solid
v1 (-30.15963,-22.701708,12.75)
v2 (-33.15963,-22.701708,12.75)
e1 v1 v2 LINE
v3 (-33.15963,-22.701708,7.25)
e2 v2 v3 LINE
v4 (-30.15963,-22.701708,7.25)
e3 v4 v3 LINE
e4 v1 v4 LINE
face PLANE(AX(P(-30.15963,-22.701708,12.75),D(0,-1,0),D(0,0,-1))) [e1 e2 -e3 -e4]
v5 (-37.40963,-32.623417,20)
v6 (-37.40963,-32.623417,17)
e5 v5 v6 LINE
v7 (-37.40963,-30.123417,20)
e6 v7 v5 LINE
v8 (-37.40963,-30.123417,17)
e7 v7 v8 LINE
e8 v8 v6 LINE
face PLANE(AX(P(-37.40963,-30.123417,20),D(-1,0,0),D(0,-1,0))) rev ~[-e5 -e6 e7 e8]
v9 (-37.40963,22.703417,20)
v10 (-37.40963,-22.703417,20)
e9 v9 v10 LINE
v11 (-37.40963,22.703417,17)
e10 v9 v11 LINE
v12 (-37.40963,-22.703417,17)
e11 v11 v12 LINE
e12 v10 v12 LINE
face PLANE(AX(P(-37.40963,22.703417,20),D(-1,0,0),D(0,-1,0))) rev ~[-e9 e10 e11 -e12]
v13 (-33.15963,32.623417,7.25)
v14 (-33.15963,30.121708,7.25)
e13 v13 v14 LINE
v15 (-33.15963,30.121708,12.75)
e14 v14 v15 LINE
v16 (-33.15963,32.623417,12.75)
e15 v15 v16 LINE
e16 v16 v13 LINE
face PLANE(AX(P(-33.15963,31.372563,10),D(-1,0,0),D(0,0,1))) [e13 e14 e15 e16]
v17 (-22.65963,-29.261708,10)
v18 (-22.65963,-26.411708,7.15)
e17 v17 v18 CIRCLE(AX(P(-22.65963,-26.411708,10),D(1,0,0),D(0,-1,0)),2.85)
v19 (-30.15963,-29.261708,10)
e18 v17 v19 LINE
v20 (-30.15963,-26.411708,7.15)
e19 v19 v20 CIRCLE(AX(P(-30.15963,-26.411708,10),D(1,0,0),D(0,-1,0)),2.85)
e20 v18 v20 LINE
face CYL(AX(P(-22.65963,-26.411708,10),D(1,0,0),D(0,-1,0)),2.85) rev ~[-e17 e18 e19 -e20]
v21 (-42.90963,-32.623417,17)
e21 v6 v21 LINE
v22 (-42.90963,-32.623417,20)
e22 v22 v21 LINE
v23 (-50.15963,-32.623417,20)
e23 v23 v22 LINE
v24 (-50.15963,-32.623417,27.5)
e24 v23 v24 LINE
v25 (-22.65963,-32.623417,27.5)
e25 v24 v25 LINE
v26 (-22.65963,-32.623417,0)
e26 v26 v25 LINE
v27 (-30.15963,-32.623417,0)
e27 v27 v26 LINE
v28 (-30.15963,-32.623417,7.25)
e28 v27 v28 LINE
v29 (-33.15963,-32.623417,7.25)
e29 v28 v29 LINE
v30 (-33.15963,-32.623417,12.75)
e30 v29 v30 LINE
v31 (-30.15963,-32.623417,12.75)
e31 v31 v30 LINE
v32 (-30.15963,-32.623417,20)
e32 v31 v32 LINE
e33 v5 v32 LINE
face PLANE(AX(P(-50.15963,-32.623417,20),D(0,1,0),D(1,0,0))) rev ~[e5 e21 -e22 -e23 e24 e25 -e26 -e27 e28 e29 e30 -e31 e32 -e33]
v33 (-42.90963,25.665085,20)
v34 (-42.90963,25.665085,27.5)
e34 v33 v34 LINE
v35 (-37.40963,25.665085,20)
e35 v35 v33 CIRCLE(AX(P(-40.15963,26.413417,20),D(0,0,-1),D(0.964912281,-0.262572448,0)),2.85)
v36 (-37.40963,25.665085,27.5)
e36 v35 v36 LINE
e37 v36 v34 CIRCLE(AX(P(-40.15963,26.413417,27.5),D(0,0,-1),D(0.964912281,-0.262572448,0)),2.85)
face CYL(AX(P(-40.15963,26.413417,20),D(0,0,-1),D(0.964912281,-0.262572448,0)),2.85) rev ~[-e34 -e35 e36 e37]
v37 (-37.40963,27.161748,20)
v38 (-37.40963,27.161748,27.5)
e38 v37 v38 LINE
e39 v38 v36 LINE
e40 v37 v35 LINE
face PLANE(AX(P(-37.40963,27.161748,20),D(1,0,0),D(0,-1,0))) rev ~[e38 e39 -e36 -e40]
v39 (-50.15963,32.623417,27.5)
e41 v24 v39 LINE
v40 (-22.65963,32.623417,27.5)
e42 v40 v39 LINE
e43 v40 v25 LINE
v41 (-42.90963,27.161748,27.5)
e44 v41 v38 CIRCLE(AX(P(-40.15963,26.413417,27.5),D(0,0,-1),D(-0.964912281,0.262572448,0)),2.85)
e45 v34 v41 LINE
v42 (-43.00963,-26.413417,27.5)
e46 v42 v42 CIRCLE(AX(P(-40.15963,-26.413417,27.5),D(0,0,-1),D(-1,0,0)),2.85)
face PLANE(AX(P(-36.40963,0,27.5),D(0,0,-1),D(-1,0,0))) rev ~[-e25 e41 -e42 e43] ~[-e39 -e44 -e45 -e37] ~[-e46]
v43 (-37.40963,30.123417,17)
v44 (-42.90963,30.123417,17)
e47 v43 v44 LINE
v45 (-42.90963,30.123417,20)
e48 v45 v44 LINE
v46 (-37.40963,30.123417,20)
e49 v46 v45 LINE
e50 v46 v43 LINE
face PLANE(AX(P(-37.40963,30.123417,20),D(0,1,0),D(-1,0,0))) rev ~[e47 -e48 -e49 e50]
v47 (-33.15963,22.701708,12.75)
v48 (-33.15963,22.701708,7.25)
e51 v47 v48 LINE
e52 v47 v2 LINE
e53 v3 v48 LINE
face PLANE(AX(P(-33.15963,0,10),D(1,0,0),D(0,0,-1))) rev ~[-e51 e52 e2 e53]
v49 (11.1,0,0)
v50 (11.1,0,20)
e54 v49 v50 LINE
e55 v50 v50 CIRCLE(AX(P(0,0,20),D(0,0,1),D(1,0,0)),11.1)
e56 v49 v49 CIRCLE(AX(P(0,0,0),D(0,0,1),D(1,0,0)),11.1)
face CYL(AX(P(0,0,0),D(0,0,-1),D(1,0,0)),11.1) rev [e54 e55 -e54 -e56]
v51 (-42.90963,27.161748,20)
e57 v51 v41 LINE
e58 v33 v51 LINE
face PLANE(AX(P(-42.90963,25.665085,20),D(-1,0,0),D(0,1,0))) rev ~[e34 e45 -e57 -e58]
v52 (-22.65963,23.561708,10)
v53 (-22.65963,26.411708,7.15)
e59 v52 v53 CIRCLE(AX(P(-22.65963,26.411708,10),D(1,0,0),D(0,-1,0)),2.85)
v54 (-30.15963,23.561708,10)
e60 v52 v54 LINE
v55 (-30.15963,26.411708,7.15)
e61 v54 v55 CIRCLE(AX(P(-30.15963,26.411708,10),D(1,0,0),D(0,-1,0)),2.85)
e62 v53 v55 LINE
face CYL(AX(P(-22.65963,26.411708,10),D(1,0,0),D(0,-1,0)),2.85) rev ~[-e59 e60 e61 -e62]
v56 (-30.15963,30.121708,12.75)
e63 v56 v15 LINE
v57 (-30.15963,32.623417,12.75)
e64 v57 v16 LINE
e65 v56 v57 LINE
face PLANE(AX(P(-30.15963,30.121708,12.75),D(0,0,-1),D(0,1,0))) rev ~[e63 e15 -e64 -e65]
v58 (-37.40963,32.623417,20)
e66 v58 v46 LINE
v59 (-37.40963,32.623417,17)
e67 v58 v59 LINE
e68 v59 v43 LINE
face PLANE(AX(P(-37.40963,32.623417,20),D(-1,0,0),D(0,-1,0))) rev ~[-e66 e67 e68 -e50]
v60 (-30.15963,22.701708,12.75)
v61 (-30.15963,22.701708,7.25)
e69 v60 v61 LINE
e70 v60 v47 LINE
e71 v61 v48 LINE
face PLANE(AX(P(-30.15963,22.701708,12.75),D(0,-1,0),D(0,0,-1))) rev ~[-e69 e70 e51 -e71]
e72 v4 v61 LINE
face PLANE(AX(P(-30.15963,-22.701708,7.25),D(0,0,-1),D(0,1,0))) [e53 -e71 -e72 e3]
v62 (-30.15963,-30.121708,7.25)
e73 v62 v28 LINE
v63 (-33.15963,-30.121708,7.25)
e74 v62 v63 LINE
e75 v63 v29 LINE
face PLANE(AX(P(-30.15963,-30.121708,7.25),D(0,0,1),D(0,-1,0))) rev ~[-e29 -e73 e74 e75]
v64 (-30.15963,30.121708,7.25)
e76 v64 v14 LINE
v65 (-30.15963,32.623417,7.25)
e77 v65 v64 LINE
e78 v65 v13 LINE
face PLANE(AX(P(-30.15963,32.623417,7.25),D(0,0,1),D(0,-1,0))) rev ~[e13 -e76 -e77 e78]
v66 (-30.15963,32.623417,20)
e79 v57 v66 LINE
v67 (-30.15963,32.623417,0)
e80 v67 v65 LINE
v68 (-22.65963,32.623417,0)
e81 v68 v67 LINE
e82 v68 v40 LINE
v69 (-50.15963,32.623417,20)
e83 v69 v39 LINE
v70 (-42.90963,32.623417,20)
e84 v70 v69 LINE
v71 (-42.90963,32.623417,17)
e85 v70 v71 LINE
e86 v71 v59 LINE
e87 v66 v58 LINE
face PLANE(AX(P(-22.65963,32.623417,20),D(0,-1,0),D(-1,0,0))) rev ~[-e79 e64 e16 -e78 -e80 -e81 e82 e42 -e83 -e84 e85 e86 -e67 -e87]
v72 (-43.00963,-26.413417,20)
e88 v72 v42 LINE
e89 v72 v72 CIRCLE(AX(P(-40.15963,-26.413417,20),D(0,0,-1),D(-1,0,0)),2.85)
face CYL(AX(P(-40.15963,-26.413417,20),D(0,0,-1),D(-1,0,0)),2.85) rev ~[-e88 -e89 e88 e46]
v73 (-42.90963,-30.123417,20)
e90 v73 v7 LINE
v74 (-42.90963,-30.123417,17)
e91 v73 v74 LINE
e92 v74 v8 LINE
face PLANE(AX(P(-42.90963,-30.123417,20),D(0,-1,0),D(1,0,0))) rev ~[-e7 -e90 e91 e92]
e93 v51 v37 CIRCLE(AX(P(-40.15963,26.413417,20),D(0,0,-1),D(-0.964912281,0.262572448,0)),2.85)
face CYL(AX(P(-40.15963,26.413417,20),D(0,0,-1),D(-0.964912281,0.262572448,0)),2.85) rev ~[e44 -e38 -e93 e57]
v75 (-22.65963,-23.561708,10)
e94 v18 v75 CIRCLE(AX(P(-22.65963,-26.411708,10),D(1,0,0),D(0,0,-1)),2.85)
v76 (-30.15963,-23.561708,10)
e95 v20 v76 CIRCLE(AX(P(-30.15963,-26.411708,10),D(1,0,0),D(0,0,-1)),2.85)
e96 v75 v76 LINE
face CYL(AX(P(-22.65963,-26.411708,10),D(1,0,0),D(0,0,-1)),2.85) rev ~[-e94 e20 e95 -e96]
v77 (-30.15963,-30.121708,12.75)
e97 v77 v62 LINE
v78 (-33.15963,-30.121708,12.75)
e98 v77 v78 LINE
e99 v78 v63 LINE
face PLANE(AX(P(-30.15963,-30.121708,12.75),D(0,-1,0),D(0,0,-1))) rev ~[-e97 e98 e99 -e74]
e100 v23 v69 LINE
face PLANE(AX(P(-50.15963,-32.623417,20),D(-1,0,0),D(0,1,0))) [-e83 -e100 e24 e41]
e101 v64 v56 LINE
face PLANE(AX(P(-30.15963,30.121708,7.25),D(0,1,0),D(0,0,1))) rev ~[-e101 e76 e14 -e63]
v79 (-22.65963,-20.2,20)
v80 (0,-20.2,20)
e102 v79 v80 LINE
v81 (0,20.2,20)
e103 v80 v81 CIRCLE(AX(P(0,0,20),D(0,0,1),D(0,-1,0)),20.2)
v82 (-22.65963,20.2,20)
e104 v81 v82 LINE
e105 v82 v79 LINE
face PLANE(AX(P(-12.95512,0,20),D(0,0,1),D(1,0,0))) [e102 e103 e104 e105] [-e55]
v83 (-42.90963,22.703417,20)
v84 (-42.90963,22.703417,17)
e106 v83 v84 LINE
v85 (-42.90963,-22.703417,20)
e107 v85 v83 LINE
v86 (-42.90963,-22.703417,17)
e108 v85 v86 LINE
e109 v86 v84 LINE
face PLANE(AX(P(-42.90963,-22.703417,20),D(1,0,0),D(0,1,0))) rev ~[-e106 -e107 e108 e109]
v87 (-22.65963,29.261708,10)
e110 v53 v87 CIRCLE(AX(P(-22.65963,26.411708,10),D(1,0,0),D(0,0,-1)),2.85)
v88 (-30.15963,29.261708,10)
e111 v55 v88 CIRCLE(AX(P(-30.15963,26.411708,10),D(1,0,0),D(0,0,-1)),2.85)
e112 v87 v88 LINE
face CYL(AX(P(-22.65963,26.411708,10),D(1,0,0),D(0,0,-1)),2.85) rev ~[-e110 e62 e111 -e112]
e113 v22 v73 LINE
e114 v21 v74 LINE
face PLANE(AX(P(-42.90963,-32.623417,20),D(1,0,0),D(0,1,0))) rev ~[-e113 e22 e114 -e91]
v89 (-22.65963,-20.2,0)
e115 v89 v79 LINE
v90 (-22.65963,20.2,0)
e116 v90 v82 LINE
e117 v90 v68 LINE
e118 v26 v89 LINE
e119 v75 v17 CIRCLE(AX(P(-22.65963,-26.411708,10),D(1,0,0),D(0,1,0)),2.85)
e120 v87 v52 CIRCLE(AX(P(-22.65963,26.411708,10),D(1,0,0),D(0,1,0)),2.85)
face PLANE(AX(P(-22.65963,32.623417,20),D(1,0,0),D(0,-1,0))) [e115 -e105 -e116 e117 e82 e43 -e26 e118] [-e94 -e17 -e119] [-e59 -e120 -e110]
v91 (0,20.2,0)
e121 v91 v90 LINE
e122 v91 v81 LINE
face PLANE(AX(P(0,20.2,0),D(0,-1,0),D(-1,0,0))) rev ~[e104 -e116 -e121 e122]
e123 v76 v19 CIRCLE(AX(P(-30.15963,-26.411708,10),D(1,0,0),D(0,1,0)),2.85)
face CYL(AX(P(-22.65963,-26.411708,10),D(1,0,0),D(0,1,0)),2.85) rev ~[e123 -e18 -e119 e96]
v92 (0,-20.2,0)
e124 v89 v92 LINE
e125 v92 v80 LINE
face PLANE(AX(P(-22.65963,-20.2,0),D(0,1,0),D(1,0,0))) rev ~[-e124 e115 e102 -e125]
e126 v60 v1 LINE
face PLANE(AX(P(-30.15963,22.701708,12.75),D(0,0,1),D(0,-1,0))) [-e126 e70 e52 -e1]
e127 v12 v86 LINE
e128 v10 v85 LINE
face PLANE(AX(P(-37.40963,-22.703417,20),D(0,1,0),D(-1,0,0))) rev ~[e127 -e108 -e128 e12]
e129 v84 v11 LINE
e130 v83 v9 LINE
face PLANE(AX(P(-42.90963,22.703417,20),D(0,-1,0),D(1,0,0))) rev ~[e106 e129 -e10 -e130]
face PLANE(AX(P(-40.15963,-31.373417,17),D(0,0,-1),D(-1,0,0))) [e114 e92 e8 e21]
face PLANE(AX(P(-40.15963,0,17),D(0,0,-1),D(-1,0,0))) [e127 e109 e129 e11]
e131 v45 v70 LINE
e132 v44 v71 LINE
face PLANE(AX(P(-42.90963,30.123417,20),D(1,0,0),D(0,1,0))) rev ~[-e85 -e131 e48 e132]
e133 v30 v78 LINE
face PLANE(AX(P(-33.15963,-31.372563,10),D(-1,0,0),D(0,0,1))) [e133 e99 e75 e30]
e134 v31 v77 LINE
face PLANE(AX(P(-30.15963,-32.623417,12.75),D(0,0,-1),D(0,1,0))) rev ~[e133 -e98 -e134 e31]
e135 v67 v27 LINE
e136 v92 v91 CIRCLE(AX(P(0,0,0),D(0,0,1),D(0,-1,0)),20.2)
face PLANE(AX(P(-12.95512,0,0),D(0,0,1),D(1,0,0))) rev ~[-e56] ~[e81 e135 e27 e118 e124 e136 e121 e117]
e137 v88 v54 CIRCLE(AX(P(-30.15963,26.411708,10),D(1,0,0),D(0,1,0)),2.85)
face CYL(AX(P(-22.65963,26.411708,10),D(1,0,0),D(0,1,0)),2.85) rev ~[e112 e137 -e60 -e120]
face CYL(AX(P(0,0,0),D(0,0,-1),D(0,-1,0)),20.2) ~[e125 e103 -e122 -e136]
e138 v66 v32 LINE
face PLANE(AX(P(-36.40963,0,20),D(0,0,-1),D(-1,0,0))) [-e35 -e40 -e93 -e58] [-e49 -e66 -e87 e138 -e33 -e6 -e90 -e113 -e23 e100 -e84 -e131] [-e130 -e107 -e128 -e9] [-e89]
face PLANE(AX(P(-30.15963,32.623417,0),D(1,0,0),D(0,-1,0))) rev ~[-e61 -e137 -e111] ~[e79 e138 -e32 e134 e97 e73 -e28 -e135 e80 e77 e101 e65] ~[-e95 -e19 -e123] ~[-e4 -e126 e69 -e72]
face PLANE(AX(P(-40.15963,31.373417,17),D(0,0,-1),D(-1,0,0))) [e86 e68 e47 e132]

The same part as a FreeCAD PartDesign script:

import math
import FreeCAD as App
import Part
import Sketcher
from FreeCAD import Vector


def add_polygon(sketch, points):
    """Adds a closed chain of lines whose ends are joined by coincident constraints."""
    first, n = sketch.GeometryCount, len(points)
    for a, b in zip(points, points[1:] + points[:1]):
        sketch.addGeometry(Part.LineSegment(App.Vector(*a, 0), App.Vector(*b, 0)), False)
    for i in range(n):
        sketch.addConstraint(Sketcher.Constraint("Coincident", first + i, 2, first + (i + 1) % n, 1))

doc = App.newDocument("Part")
body = doc.addObject("PartDesign::Body", "Body")

# Sketch on XY plane
sketch1 = body.newObject("Sketcher::SketchObject", "Sketch")
sketch1.AttachmentSupport = (doc.getObject("XY_Plane"), [""])
sketch1.MapMode = "FlatFace"
sketch1.addGeometry(Part.LineSegment(Vector(0, 20, 0), Vector(-23, 20, 0)), False)
sketch1.addGeometry(Part.LineSegment(Vector(-23, 20, 0), Vector(-23, 33, 0)), False)
sketch1.addGeometry(Part.LineSegment(Vector(-23, 33, 0), Vector(-30, 33, 0)), False)
sketch1.addGeometry(Part.LineSegment(Vector(-30, 33, 0), Vector(-30, -33, 0)), False)
sketch1.addGeometry(Part.LineSegment(Vector(-30, -33, 0), Vector(-23, -33, 0)), False)
sketch1.addGeometry(Part.LineSegment(Vector(-23, -33, 0), Vector(-23, -20, 0)), False)
sketch1.addGeometry(Part.LineSegment(Vector(-23, -20, 0), Vector(0, -20, 0)), False)
sketch1.addGeometry(Part.ArcOfCircle(Part.Circle(Vector(0, 0, 0), Vector(0, 0, 1), 20), math.radians(-90), math.radians(90)), False)
sketch1.addGeometry(Part.Circle(Vector(0, 0, 0), Vector(0, 0, 1), 11), False)
sketch1.addConstraint(Sketcher.Constraint("Coincident", 0, 2, 1, 1))
sketch1.addConstraint(Sketcher.Constraint("Coincident", 1, 2, 2, 1))
sketch1.addConstraint(Sketcher.Constraint("Coincident", 2, 2, 3, 1))
sketch1.addConstraint(Sketcher.Constraint("Coincident", 3, 2, 4, 1))
sketch1.addConstraint(Sketcher.Constraint("Coincident", 4, 2, 5, 1))
sketch1.addConstraint(Sketcher.Constraint("Coincident", 5, 2, 6, 1))
sketch1.addConstraint(Sketcher.Constraint("Tangent", 6, 2, 7, 1))
sketch1.addConstraint(Sketcher.Constraint("Tangent", 7, 2, 0, 1))
sketch1.addConstraint(Sketcher.Constraint("Horizontal", 0))
sketch1.addConstraint(Sketcher.Constraint("Vertical", 1))
sketch1.addConstraint(Sketcher.Constraint("Horizontal", 2))
sketch1.addConstraint(Sketcher.Constraint("Vertical", 3))
sketch1.addConstraint(Sketcher.Constraint("Horizontal", 4))
sketch1.addConstraint(Sketcher.Constraint("Vertical", 5))
sketch1.addConstraint(Sketcher.Constraint("Horizontal", 6))
sketch1.addConstraint(Sketcher.Constraint("Coincident", 7, 3, -1, 1))
sketch1.addConstraint(Sketcher.Constraint("Coincident", 8, 3, -1, 1))
sketch1.addConstraint(Sketcher.Constraint("Symmetric", 1, 2, 4, 2, -1))
sketch1.addConstraint(Sketcher.Constraint("Diameter", 8, 22.2))
sketch1.addConstraint(Sketcher.Constraint("Radius", 7, 20.2))
sketch1.addConstraint(Sketcher.Constraint("DistanceX", 2, 2, 2, 1, 7.5))
sketch1.addConstraint(Sketcher.Constraint("DistanceX", 0, 2, 0, 1, 22.65963))
sketch1.addConstraint(Sketcher.Constraint("DistanceY", 1, 1, 1, 2, 12.423417))
pad1 = body.newObject("PartDesign::Pad", "Pad")
pad1.Profile = sketch1
pad1.Length = 20

# Sketch on YZ plane
sketch2 = body.newObject("Sketcher::SketchObject", "Sketch001")
sketch2.AttachmentSupport = (doc.getObject("YZ_Plane"), [""])
sketch2.MapMode = "FlatFace"
sketch2.AttachmentOffset = App.Placement(Vector(0, 0, -22.65963), App.Rotation())
sketch2.addGeometry(Part.ArcOfCircle(Part.Circle(Vector(-26.4, 10, 0), Vector(0, 0, 1), 2.9), math.radians(0), math.radians(180)), False)
sketch2.addGeometry(Part.ArcOfCircle(Part.Circle(Vector(-26.4, 10, 0), Vector(0, 0, 1), 2.9), math.radians(-180), math.radians(-90)), False)
sketch2.addGeometry(Part.ArcOfCircle(Part.Circle(Vector(-26.4, 10, 0), Vector(0, 0, 1), 2.9), math.radians(-90), math.radians(0)), False)
sketch2.addGeometry(Part.ArcOfCircle(Part.Circle(Vector(26.4, 10, 0), Vector(0, 0, 1), 2.9), math.radians(-90), math.radians(0)), False)
sketch2.addGeometry(Part.ArcOfCircle(Part.Circle(Vector(26.4, 10, 0), Vector(0, 0, 1), 2.9), math.radians(0), math.radians(180)), False)
sketch2.addGeometry(Part.ArcOfCircle(Part.Circle(Vector(26.4, 10, 0), Vector(0, 0, 1), 2.9), math.radians(180), math.radians(270)), False)
sketch2.addConstraint(Sketcher.Constraint("Tangent", 0, 2, 1, 1))
sketch2.addConstraint(Sketcher.Constraint("Tangent", 1, 2, 2, 1))
sketch2.addConstraint(Sketcher.Constraint("Tangent", 2, 2, 0, 1))
sketch2.addConstraint(Sketcher.Constraint("Tangent", 3, 2, 4, 1))
sketch2.addConstraint(Sketcher.Constraint("Tangent", 4, 2, 5, 1))
sketch2.addConstraint(Sketcher.Constraint("Tangent", 5, 2, 3, 1))
sketch2.addConstraint(Sketcher.Constraint("Equal", 2, 3))
sketch2.addConstraint(Sketcher.Constraint("Symmetric", 0, 3, 3, 3, -2))
sketch2.addConstraint(Sketcher.Constraint("Horizontal", 5, 3, 0, 2))
sketch2.addConstraint(Sketcher.Constraint("Horizontal", 0, 2, 2, 2))
sketch2.addConstraint(Sketcher.Constraint("Horizontal", 2, 2, 3, 2))
sketch2.addConstraint(Sketcher.Constraint("Horizontal", 3, 2, 4, 2))
sketch2.addConstraint(Sketcher.Constraint("Vertical", 2, 3, 1, 2))
sketch2.addConstraint(Sketcher.Constraint("Vertical", 4, 3, 5, 2))
sketch2.addConstraint(Sketcher.Constraint("Radius", 0, 2.85))
sketch2.addConstraint(Sketcher.Constraint("DistanceY", -1, 1, 0, 3, 10.0))
sketch2.addConstraint(Sketcher.Constraint("DistanceX", 0, 3, -1, 1, 26.411708))
pocket1 = body.newObject("PartDesign::Pocket", "Pocket")
pocket1.Profile = sketch2
pocket1.Length = 10

# Sketch on YZ plane
sketch3 = body.newObject("Sketcher::SketchObject", "Sketch002")
sketch3.AttachmentSupport = (doc.getObject("YZ_Plane"), [""])
sketch3.MapMode = "FlatFace"
sketch3.AttachmentOffset = App.Placement(Vector(0, 0, -30.15963), App.Rotation())
add_polygon(sketch3, [(22.7, 12.8), (22.7, 7.2), (-22.7, 7.2), (-22.7, 12.8)])  # lines 0-3
add_polygon(sketch3, [(32.6, 7.2), (30.1, 7.2), (30.1, 12.8), (32.6, 12.8)])  # lines 4-7
add_polygon(sketch3, [(-30.1, 7.2), (-32.6, 7.2), (-32.6, 12.8), (-30.1, 12.8)])  # lines 8-11
sketch3.addConstraint(Sketcher.Constraint("Vertical", 0))
sketch3.addConstraint(Sketcher.Constraint("Horizontal", 1))
sketch3.addConstraint(Sketcher.Constraint("Vertical", 2))
sketch3.addConstraint(Sketcher.Constraint("Horizontal", 3))
sketch3.addConstraint(Sketcher.Constraint("Horizontal", 4))
sketch3.addConstraint(Sketcher.Constraint("Vertical", 5))
sketch3.addConstraint(Sketcher.Constraint("Horizontal", 6))
sketch3.addConstraint(Sketcher.Constraint("Vertical", 7))
sketch3.addConstraint(Sketcher.Constraint("Horizontal", 8))
sketch3.addConstraint(Sketcher.Constraint("Vertical", 9))
sketch3.addConstraint(Sketcher.Constraint("Horizontal", 10))
sketch3.addConstraint(Sketcher.Constraint("Vertical", 11))
sketch3.addConstraint(Sketcher.Constraint("Symmetric", 7, 2, 8, 2, -2))
sketch3.addConstraint(Sketcher.Constraint("Symmetric", 5, 2, 10, 2, -2))
sketch3.addConstraint(Sketcher.Constraint("Horizontal", 1, 2, 4, 2))
sketch3.addConstraint(Sketcher.Constraint("Horizontal", 3, 2, 5, 2))
sketch3.addConstraint(Sketcher.Constraint("DistanceY", 0, 2, 0, 1, 5.5))
sketch3.addConstraint(Sketcher.Constraint("DistanceY", -1, 1, 0, 2, 7.25))
sketch3.addConstraint(Sketcher.Constraint("DistanceX", 0, 2, 4, 2, 7.42))
sketch3.addConstraint(Sketcher.Constraint("DistanceX", 10, 2, 2, 2, 7.42))
sketch3.addConstraint(Sketcher.Constraint("DistanceX", 4, 2, 4, 1, 2.501708))
sketch3.addConstraint(Sketcher.Constraint("DistanceX", 1, 2, 1, 1, 45.403417))
pad2 = body.newObject("PartDesign::Pad", "Pad001")
pad2.Profile = sketch3
pad2.Length = 3
pad2.Reversed = True

# Sketch on XY plane
sketch4 = body.newObject("Sketcher::SketchObject", "Sketch003")
sketch4.AttachmentSupport = (doc.getObject("XY_Plane"), [""])
sketch4.MapMode = "FlatFace"
sketch4.AttachmentOffset = App.Placement(Vector(0, 0, 20), App.Rotation())
add_polygon(sketch4, [(-50, -33), (-23, -33), (-23, 33), (-50, 33)])  # lines 0-3
sketch4.addConstraint(Sketcher.Constraint("Horizontal", 0))
sketch4.addConstraint(Sketcher.Constraint("Vertical", 1))
sketch4.addConstraint(Sketcher.Constraint("Horizontal", 2))
sketch4.addConstraint(Sketcher.Constraint("Vertical", 3))
sketch4.addConstraint(Sketcher.Constraint("DistanceX", 0, 1, 0, 2, 27.5))
sketch4.addConstraint(Sketcher.Constraint("DistanceY", 1, 1, 1, 2, 65.246834))
sketch4.addConstraint(Sketcher.Constraint("DistanceX", 0, 2, -1, 1, 22.65963))
sketch4.addConstraint(Sketcher.Constraint("DistanceY", 0, 2, -1, 1, 32.623417))
pad3 = body.newObject("PartDesign::Pad", "Pad002")
pad3.Profile = sketch4
pad3.Length = 7.5

# Sketch on XY plane
sketch5 = body.newObject("Sketcher::SketchObject", "Sketch004")
sketch5.AttachmentSupport = (doc.getObject("XY_Plane"), [""])
sketch5.MapMode = "FlatFace"
sketch5.AttachmentOffset = App.Placement(Vector(0, 0, 20), App.Rotation())
sketch5.addGeometry(Part.Circle(Vector(-40.2, -26.4, 0), Vector(0, 0, 1), 2.9), False)
sketch5.addGeometry(Part.LineSegment(Vector(-37.4, 27.2, 0), Vector(-37.4, 25.7, 0)), False)
sketch5.addGeometry(Part.ArcOfCircle(Part.Circle(Vector(-40.2, 26.4, 0), Vector(0, 0, 1), 2.9), math.radians(-165), math.radians(-15)), False)
sketch5.addGeometry(Part.LineSegment(Vector(-42.9, 25.7, 0), Vector(-42.9, 27.2, 0)), False)
sketch5.addGeometry(Part.ArcOfCircle(Part.Circle(Vector(-40.2, 26.4, 0), Vector(0, 0, 1), 2.9), math.radians(15), math.radians(165)), False)
sketch5.addConstraint(Sketcher.Constraint("Coincident", 1, 2, 2, 2))
sketch5.addConstraint(Sketcher.Constraint("Coincident", 2, 1, 3, 1))
sketch5.addConstraint(Sketcher.Constraint("Coincident", 3, 2, 4, 2))
sketch5.addConstraint(Sketcher.Constraint("Coincident", 4, 1, 1, 1))
sketch5.addConstraint(Sketcher.Constraint("Vertical", 1))
sketch5.addConstraint(Sketcher.Constraint("Vertical", 3))
sketch5.addConstraint(Sketcher.Constraint("Coincident", 4, 3, 2, 3))
sketch5.addConstraint(Sketcher.Constraint("Equal", 0, 2))
sketch5.addConstraint(Sketcher.Constraint("Equal", 2, 4))
sketch5.addConstraint(Sketcher.Constraint("Symmetric", 0, 3, 2, 3, -1))
sketch5.addConstraint(Sketcher.Constraint("Horizontal", 1, 2, 2, 1))
sketch5.addConstraint(Sketcher.Constraint("Diameter", 0, 5.7))
sketch5.addConstraint(Sketcher.Constraint("DistanceX", 2, 1, 1, 2, 5.5))
sketch5.addConstraint(Sketcher.Constraint("DistanceX", 0, 3, -1, 1, 40.15963))
sketch5.addConstraint(Sketcher.Constraint("DistanceY", -1, 1, 3, 2, 27.161748))
pocket2 = body.newObject("PartDesign::Pocket", "Pocket001")
pocket2.Profile = sketch5
pocket2.Length = 10
pocket2.Reversed = True

# Sketch on XY plane
sketch6 = body.newObject("Sketcher::SketchObject", "Sketch005")
sketch6.AttachmentSupport = (doc.getObject("XY_Plane"), [""])
sketch6.MapMode = "FlatFace"
sketch6.AttachmentOffset = App.Placement(Vector(0, 0, 20), App.Rotation())
add_polygon(sketch6, [(-37.4, -22.7), (-42.9, -22.7), (-42.9, 22.7), (-37.4, 22.7)])  # lines 0-3
add_polygon(sketch6, [(-37.4, 32.6), (-37.4, 30.1), (-42.9, 30.1), (-42.9, 32.6)])  # lines 4-7
add_polygon(sketch6, [(-42.9, -30.1), (-37.4, -30.1), (-37.4, -32.6), (-42.9, -32.6)])  # lines 8-11
sketch6.addConstraint(Sketcher.Constraint("Horizontal", 0))
sketch6.addConstraint(Sketcher.Constraint("Vertical", 1))
sketch6.addConstraint(Sketcher.Constraint("Horizontal", 2))
sketch6.addConstraint(Sketcher.Constraint("Vertical", 3))
sketch6.addConstraint(Sketcher.Constraint("Vertical", 4))
sketch6.addConstraint(Sketcher.Constraint("Horizontal", 5))
sketch6.addConstraint(Sketcher.Constraint("Vertical", 6))
sketch6.addConstraint(Sketcher.Constraint("Horizontal", 7))
sketch6.addConstraint(Sketcher.Constraint("Horizontal", 8))
sketch6.addConstraint(Sketcher.Constraint("Vertical", 9))
sketch6.addConstraint(Sketcher.Constraint("Horizontal", 10))
sketch6.addConstraint(Sketcher.Constraint("Vertical", 11))
sketch6.addConstraint(Sketcher.Constraint("Symmetric", 4, 2, 8, 2, -1))
sketch6.addConstraint(Sketcher.Constraint("Symmetric", 6, 2, 10, 2, -1))
sketch6.addConstraint(Sketcher.Constraint("Vertical", 3, 2, 4, 2))
sketch6.addConstraint(Sketcher.Constraint("Vertical", 1, 2, 5, 2))
sketch6.addConstraint(Sketcher.Constraint("DistanceX", 0, 2, 0, 1, 5.5))
sketch6.addConstraint(Sketcher.Constraint("DistanceY", 4, 2, 4, 1, 2.5))
sketch6.addConstraint(Sketcher.Constraint("DistanceY", 2, 2, 4, 2, 7.42))
sketch6.addConstraint(Sketcher.Constraint("DistanceY", 8, 2, 3, 2, 7.42))
sketch6.addConstraint(Sketcher.Constraint("DistanceY", 1, 1, 1, 2, 45.406834))
sketch6.addConstraint(Sketcher.Constraint("DistanceX", 0, 2, -1, 1, 42.90963))
pad4 = body.newObject("PartDesign::Pad", "Pad003")
pad4.Profile = sketch6
pad4.Length = 3
pad4.Reversed = True

doc.recompute()
